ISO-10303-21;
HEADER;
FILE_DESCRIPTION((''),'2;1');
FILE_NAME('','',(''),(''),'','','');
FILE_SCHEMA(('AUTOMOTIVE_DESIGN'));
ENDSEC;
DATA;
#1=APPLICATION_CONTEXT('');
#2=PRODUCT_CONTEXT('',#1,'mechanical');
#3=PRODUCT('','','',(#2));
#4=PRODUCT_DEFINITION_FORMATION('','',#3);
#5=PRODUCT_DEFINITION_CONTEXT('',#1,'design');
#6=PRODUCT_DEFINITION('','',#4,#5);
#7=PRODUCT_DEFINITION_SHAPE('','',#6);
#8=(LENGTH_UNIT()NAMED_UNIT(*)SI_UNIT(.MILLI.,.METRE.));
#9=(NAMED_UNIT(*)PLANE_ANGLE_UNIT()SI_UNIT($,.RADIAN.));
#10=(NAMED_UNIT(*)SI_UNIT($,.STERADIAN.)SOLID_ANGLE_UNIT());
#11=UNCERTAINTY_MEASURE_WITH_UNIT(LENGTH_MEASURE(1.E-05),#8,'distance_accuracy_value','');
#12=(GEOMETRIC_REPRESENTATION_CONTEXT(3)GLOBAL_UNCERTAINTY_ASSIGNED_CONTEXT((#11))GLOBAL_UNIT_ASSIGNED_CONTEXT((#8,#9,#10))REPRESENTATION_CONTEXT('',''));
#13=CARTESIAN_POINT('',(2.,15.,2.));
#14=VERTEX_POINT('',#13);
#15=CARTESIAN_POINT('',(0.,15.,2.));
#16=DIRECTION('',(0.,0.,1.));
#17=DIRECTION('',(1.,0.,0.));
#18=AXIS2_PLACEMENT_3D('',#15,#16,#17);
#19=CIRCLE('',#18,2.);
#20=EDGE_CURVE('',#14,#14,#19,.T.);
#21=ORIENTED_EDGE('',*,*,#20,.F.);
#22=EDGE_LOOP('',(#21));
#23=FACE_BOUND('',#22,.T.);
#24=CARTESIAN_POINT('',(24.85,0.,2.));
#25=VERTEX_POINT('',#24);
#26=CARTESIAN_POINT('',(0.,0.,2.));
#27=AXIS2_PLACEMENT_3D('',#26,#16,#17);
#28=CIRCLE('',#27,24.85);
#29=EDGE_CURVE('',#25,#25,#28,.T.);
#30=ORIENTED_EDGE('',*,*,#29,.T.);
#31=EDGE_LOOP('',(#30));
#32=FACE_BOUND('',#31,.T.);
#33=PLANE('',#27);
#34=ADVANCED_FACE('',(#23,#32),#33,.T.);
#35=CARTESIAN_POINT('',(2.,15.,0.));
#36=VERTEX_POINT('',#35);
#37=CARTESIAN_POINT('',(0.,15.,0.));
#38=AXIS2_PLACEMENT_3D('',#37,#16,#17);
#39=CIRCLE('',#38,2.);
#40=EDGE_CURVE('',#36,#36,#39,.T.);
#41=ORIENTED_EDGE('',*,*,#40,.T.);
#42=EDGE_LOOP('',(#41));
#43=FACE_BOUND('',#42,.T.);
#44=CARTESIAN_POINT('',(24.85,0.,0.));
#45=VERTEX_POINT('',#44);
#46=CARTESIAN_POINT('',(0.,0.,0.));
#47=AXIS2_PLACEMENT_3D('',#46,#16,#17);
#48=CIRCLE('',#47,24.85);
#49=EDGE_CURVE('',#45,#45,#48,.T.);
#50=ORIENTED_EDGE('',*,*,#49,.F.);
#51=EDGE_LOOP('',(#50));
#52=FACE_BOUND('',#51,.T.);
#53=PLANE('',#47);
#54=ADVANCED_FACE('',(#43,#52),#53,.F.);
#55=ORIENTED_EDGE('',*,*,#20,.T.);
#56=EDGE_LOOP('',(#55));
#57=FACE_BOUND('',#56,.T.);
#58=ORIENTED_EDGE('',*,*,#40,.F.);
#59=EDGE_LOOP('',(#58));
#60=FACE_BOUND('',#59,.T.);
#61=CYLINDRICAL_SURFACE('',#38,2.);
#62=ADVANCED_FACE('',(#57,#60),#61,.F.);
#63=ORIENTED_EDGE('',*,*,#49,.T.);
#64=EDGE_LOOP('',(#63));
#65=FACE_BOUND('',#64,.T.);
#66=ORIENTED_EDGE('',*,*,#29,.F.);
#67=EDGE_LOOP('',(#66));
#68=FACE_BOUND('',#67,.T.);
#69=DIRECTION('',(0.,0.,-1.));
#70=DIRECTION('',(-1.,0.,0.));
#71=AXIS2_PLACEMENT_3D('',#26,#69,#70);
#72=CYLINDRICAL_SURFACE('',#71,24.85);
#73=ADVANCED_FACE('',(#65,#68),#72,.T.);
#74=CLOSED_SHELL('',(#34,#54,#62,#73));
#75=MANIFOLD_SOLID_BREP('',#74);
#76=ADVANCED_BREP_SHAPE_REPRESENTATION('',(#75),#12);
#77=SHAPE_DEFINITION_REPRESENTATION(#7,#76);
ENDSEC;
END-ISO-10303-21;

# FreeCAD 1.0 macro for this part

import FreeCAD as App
import Part
import Sketcher

V = App.Vector
Q = App.Units.Quantity

doc = App.newDocument("Part")
params = doc.addObject("Spreadsheet::Sheet", "Params")
for row, (alias, value) in enumerate([
    ("sketch1_diameter", "49.7 mm"),
    ("pad1_length", "2 mm"),
    ("sketch2_diameter", "4 mm"),
    ("pocket1_length", "2 mm"),
], start=1):
    params.set(f"A{row}", alias)
    params.set(f"B{row}", "=" + value)
    params.setAlias(f"B{row}", alias)

body = doc.addObject("PartDesign::Body", "Body")

sketch1 = body.newObject("Sketcher::SketchObject", "Sketch")
sketch1.AttachmentSupport = (doc.getObject("XY_Plane"), [""])
sketch1.MapMode = "FlatFace"
sketch1.addGeometry(Part.Circle(V(0, 0, 0), V(0, 0, 1), 25), False)
sketch1.addConstraint([
    Sketcher.Constraint("Coincident", 0, 3, -1, 1),
    Sketcher.Constraint("Diameter", 0, Q("49.7 mm")),
])
sketch1.setExpression("Constraints[1]", "Params.sketch1_diameter")
pad1 = body.newObject("PartDesign::Pad", "Pad")
pad1.Profile = sketch1
pad1.setExpression("Length", "Params.pad1_length")

sketch2 = body.newObject("Sketcher::SketchObject", "Sketch001")
sketch2.AttachmentSupport = (doc.getObject("XY_Plane"), [""])
sketch2.MapMode = "FlatFace"
sketch2.AttachmentOffset = App.Placement(V(0, 0, 2), App.Rotation())
sketch2.addGeometry(Part.Circle(V(0, 15, 0), V(0, 0, 1), 2), False)
sketch2.addConstraint([
    Sketcher.Constraint("PointOnObject", 0, 3, -2),
    Sketcher.Constraint("Diameter", 0, Q("4 mm")),
    Sketcher.Constraint("DistanceY", -1, 1, 0, 3, Q("15 mm")),
])
sketch2.setExpression("Constraints[1]", "Params.sketch2_diameter")
pocket1 = body.newObject("PartDesign::Pocket", "Pocket")
pocket1.Profile = sketch2
pocket1.setExpression("Length", "Params.pocket1_length")

doc.recompute()
